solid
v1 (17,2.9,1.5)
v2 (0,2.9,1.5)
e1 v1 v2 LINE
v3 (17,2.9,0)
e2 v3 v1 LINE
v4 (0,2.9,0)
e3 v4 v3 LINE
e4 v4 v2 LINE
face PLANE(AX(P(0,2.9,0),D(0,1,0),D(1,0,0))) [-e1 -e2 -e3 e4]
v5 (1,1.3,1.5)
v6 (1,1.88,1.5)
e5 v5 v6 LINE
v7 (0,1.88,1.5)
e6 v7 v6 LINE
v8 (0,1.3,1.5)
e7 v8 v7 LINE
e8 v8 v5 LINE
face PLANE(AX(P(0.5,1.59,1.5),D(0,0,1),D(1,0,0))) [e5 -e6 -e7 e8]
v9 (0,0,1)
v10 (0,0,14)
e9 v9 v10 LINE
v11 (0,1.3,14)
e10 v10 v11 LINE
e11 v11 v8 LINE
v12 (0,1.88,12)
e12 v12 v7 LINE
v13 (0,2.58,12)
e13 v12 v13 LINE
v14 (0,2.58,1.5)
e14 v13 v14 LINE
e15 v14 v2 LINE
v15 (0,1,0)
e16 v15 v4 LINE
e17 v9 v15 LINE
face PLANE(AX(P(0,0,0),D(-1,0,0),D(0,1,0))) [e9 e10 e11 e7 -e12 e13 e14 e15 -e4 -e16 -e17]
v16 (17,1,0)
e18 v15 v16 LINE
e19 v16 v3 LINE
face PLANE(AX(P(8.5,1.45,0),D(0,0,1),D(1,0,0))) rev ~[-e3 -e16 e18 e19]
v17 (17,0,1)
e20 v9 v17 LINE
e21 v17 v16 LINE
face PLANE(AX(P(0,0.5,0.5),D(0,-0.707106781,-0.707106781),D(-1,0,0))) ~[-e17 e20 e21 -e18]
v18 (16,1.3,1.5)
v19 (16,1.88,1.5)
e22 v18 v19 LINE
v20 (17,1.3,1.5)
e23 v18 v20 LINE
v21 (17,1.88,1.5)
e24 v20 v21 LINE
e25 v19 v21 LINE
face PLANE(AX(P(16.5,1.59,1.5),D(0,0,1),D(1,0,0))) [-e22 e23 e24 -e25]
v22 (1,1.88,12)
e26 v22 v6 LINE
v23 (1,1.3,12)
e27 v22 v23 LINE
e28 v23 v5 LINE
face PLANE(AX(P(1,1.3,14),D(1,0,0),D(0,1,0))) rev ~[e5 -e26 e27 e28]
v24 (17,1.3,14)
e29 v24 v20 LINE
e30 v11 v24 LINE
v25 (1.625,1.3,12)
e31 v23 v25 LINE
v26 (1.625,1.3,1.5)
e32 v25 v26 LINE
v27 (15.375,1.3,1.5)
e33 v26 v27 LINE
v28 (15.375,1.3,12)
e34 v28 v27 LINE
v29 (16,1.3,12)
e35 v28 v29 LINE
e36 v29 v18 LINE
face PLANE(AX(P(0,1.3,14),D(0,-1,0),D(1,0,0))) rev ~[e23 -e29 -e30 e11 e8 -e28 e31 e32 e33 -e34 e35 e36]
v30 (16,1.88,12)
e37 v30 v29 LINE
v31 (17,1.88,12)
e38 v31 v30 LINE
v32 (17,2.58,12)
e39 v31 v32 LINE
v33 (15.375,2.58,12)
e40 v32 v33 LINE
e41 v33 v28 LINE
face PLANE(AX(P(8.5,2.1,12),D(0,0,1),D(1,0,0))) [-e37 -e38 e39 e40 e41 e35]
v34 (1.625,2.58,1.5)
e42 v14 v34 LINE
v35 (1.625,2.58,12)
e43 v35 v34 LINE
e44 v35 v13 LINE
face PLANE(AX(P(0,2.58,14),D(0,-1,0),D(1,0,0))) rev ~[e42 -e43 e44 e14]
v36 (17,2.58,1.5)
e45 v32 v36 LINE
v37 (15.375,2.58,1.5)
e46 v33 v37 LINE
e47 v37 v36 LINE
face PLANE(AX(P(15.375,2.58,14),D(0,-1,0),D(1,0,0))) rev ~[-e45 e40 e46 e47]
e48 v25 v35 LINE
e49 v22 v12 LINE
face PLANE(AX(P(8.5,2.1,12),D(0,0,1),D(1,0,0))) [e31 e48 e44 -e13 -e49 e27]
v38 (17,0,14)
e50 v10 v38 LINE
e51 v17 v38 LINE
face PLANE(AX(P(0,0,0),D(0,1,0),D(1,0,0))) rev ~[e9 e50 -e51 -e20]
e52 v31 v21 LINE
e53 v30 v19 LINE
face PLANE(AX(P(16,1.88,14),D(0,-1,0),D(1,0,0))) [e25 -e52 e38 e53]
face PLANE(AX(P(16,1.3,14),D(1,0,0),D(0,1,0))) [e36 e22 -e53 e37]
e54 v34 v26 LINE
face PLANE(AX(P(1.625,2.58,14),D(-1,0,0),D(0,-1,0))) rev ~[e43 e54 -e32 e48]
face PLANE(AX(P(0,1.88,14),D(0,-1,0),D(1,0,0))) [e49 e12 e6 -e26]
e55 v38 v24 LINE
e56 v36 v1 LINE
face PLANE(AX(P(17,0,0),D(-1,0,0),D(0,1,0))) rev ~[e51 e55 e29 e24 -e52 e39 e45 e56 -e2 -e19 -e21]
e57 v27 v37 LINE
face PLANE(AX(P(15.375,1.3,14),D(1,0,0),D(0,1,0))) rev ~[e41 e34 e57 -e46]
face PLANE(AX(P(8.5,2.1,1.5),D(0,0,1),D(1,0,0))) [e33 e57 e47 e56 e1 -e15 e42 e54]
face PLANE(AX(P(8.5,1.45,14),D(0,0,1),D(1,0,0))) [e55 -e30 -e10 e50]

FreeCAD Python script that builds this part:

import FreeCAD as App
import Part
import Sketcher


def edges_at(feature, points):
    """Names of the edges that pass closest to the given points."""
    edges = feature.Shape.Edges
    near = lambda p: min(range(len(edges)), key=lambda i: edges[i].distToShape(Part.Vertex(*p))[0])
    return sorted({f"Edge{near(p) + 1}" for p in points})

doc = App.newDocument("Part")
body = doc.addObject("PartDesign::Body", "Body")

# Sketch on XY plane
sketch1 = doc.addObject("Sketcher::SketchObject", "Sketch")
body.addObject(sketch1)
sketch1.AttachmentSupport = (doc.XY_Plane, [""])
sketch1.MapMode = "FlatFace"
sketch1.addGeometry([
    Part.LineSegment(App.Vector(0, 2.9, 0), App.Vector(0, 0, 0)),
    Part.LineSegment(App.Vector(0, 0, 0), App.Vector(17, 0, 0)),
    Part.LineSegment(App.Vector(17, 0, 0), App.Vector(17, 2.9, 0)),
    Part.LineSegment(App.Vector(17, 2.9, 0), App.Vector(0, 2.9, 0)),
], False)
sketch1.addConstraint([
    Sketcher.Constraint("Coincident", 0, 2, 1, 1),
    Sketcher.Constraint("Coincident", 1, 2, 2, 1),
    Sketcher.Constraint("Coincident", 2, 2, 3, 1),
    Sketcher.Constraint("Coincident", 3, 2, 0, 1),
    Sketcher.Constraint("Vertical", 0),
    Sketcher.Constraint("Horizontal", 1),
    Sketcher.Constraint("Vertical", 2),
    Sketcher.Constraint("Horizontal", 3),
    Sketcher.Constraint("Coincident", 0, 2, -1, 1),
    Sketcher.Constraint("DistanceX", 1, 1, 1, 2, 17.0),
    Sketcher.Constraint("DistanceY", 0, 2, 0, 1, 2.9),
])
pad1 = doc.addObject("PartDesign::Pad", "Pad")
body.addObject(pad1)
pad1.Profile = sketch1
pad1.Length = 14

# Sketch on XY plane
sketch2 = doc.addObject("Sketcher::SketchObject", "Sketch001")
body.addObject(sketch2)
sketch2.AttachmentSupport = (doc.XY_Plane, [""])
sketch2.MapMode = "FlatFace"
sketch2.AttachmentOffset = App.Placement(App.Vector(0, 0, 14), App.Rotation())
sketch2.addGeometry([
    Part.LineSegment(App.Vector(1.62, 2.58, 0), App.Vector(1.62, 1.3, 0)),  # 0
    Part.LineSegment(App.Vector(1.62, 1.3, 0), App.Vector(15.38, 1.3, 0)),  # 1
    Part.LineSegment(App.Vector(15.38, 1.3, 0), App.Vector(15.38, 2.58, 0)),  # 2
    Part.LineSegment(App.Vector(15.38, 2.58, 0), App.Vector(17, 2.58, 0)),  # 3
    Part.LineSegment(App.Vector(17, 2.58, 0), App.Vector(17, 2.9, 0)),  # 4
    Part.LineSegment(App.Vector(17, 2.9, 0), App.Vector(0, 2.9, 0)),  # 5
    Part.LineSegment(App.Vector(0, 2.9, 0), App.Vector(0, 2.58, 0)),  # 6
    Part.LineSegment(App.Vector(0, 2.58, 0), App.Vector(1.62, 2.58, 0)),  # 7
    Part.LineSegment(App.Vector(16, 1.88, 0), App.Vector(16, 1.3, 0)),  # 8
    Part.LineSegment(App.Vector(16, 1.3, 0), App.Vector(17, 1.3, 0)),  # 9
    Part.LineSegment(App.Vector(17, 1.3, 0), App.Vector(17, 1.88, 0)),  # 10
    Part.LineSegment(App.Vector(17, 1.88, 0), App.Vector(16, 1.88, 0)),  # 11
    Part.LineSegment(App.Vector(0, 1.88, 0), App.Vector(0, 1.3, 0)),  # 12
    Part.LineSegment(App.Vector(0, 1.3, 0), App.Vector(1, 1.3, 0)),  # 13
    Part.LineSegment(App.Vector(1, 1.3, 0), App.Vector(1, 1.88, 0)),  # 14
    Part.LineSegment(App.Vector(1, 1.88, 0), App.Vector(0, 1.88, 0)),  # 15
], False)
sketch2.addConstraint([
    Sketcher.Constraint("Coincident", 0, 2, 1, 1),
    Sketcher.Constraint("Coincident", 1, 2, 2, 1),
    Sketcher.Constraint("Coincident", 2, 2, 3, 1),
    Sketcher.Constraint("Coincident", 3, 2, 4, 1),
    Sketcher.Constraint("Coincident", 4, 2, 5, 1),
    Sketcher.Constraint("Coincident", 5, 2, 6, 1),
    Sketcher.Constraint("Coincident", 6, 2, 7, 1),
    Sketcher.Constraint("Coincident", 7, 2, 0, 1),
    Sketcher.Constraint("Coincident", 8, 2, 9, 1),
    Sketcher.Constraint("Coincident", 9, 2, 10, 1),
    Sketcher.Constraint("Coincident", 10, 2, 11, 1),
    Sketcher.Constraint("Coincident", 11, 2, 8, 1),
    Sketcher.Constraint("Coincident", 12, 2, 13, 1),
    Sketcher.Constraint("Coincident", 13, 2, 14, 1),
    Sketcher.Constraint("Coincident", 14, 2, 15, 1),
    Sketcher.Constraint("Coincident", 15, 2, 12, 1),
    Sketcher.Constraint("Vertical", 0),
    Sketcher.Constraint("Horizontal", 1),
    Sketcher.Constraint("Vertical", 2),
    Sketcher.Constraint("Horizontal", 3),
    Sketcher.Constraint("Vertical", 4),
    Sketcher.Constraint("Horizontal", 5),
    Sketcher.Constraint("Vertical", 6),
    Sketcher.Constraint("Horizontal", 7),
    Sketcher.Constraint("Vertical", 8),
    Sketcher.Constraint("Horizontal", 9),
    Sketcher.Constraint("Vertical", 10),
    Sketcher.Constraint("Horizontal", 11),
    Sketcher.Constraint("Vertical", 12),
    Sketcher.Constraint("Horizontal", 13),
    Sketcher.Constraint("Vertical", 14),
    Sketcher.Constraint("Horizontal", 15),
    Sketcher.Constraint("PointOnObject", 5, 2, -2),
    Sketcher.Constraint("PointOnObject", 12, 2, -2),
    Sketcher.Constraint("Horizontal", 3, 2, 6, 2),
    Sketcher.Constraint("Horizontal", 1, 2, 8, 2),
    Sketcher.Constraint("Horizontal", 9, 2, 12, 2),
    Sketcher.Constraint("Horizontal", 11, 2, 14, 2),
    Sketcher.Constraint("Vertical", 4, 2, 9, 2),
    Sketcher.Constraint("Equal", 3, 7),
    Sketcher.Constraint("Equal", 11, 13),
    Sketcher.Constraint("DistanceX", 5, 2, 5, 1, 17.0),
    Sketcher.Constraint("DistanceX", 9, 1, 9, 2, 1.0),
    Sketcher.Constraint("DistanceX", 1, 1, 1, 2, 13.75),
    Sketcher.Constraint("DistanceY", 0, 2, 0, 1, 1.28),
    Sketcher.Constraint("DistanceY", 4, 1, 4, 2, 0.32),
    Sketcher.Constraint("DistanceY", 8, 2, 8, 1, 0.58),
    Sketcher.Constraint("DistanceY", -1, 1, 0, 2, 1.3),
])
pocket1 = doc.addObject("PartDesign::Pocket", "Pocket")
body.addObject(pocket1)
pocket1.Profile = sketch2
pocket1.Length = 12.5

# Sketch on XY plane
sketch3 = doc.addObject("Sketcher::SketchObject", "Sketch002")
body.addObject(sketch3)
sketch3.AttachmentSupport = (doc.XY_Plane, [""])
sketch3.MapMode = "FlatFace"
sketch3.AttachmentOffset = App.Placement(App.Vector(0, 0, 14), App.Rotation())
sketch3.addGeometry([
    Part.LineSegment(App.Vector(0, 2.9, 0), App.Vector(0, 1.3, 0)),
    Part.LineSegment(App.Vector(0, 1.3, 0), App.Vector(17, 1.3, 0)),
    Part.LineSegment(App.Vector(17, 1.3, 0), App.Vector(17, 2.9, 0)),
    Part.LineSegment(App.Vector(17, 2.9, 0), App.Vector(0, 2.9, 0)),
], False)
sketch3.addConstraint([
    Sketcher.Constraint("Coincident", 0, 2, 1, 1),
    Sketcher.Constraint("Coincident", 1, 2, 2, 1),
    Sketcher.Constraint("Coincident", 2, 2, 3, 1),
    Sketcher.Constraint("Coincident", 3, 2, 0, 1),
    Sketcher.Constraint("Vertical", 0),
    Sketcher.Constraint("Horizontal", 1),
    Sketcher.Constraint("Vertical", 2),
    Sketcher.Constraint("Horizontal", 3),
    Sketcher.Constraint("PointOnObject", 0, 2, -2),
    Sketcher.Constraint("DistanceX", 1, 1, 1, 2, 17.0),
    Sketcher.Constraint("DistanceY", 0, 2, 0, 1, 1.6),
    Sketcher.Constraint("DistanceY", -1, 1, 0, 2, 1.3),
])
pocket2 = doc.addObject("PartDesign::Pocket", "Pocket001")
body.addObject(pocket2)
pocket2.Profile = sketch3
pocket2.Length = 2
doc.recompute()

chamfer = doc.addObject("PartDesign::Chamfer", "Chamfer")
body.addObject(chamfer)
chamfer.Base = (pocket2, edges_at(pocket2, [(8.5, 0, 0)]))
chamfer.Size = 1

doc.recompute()
